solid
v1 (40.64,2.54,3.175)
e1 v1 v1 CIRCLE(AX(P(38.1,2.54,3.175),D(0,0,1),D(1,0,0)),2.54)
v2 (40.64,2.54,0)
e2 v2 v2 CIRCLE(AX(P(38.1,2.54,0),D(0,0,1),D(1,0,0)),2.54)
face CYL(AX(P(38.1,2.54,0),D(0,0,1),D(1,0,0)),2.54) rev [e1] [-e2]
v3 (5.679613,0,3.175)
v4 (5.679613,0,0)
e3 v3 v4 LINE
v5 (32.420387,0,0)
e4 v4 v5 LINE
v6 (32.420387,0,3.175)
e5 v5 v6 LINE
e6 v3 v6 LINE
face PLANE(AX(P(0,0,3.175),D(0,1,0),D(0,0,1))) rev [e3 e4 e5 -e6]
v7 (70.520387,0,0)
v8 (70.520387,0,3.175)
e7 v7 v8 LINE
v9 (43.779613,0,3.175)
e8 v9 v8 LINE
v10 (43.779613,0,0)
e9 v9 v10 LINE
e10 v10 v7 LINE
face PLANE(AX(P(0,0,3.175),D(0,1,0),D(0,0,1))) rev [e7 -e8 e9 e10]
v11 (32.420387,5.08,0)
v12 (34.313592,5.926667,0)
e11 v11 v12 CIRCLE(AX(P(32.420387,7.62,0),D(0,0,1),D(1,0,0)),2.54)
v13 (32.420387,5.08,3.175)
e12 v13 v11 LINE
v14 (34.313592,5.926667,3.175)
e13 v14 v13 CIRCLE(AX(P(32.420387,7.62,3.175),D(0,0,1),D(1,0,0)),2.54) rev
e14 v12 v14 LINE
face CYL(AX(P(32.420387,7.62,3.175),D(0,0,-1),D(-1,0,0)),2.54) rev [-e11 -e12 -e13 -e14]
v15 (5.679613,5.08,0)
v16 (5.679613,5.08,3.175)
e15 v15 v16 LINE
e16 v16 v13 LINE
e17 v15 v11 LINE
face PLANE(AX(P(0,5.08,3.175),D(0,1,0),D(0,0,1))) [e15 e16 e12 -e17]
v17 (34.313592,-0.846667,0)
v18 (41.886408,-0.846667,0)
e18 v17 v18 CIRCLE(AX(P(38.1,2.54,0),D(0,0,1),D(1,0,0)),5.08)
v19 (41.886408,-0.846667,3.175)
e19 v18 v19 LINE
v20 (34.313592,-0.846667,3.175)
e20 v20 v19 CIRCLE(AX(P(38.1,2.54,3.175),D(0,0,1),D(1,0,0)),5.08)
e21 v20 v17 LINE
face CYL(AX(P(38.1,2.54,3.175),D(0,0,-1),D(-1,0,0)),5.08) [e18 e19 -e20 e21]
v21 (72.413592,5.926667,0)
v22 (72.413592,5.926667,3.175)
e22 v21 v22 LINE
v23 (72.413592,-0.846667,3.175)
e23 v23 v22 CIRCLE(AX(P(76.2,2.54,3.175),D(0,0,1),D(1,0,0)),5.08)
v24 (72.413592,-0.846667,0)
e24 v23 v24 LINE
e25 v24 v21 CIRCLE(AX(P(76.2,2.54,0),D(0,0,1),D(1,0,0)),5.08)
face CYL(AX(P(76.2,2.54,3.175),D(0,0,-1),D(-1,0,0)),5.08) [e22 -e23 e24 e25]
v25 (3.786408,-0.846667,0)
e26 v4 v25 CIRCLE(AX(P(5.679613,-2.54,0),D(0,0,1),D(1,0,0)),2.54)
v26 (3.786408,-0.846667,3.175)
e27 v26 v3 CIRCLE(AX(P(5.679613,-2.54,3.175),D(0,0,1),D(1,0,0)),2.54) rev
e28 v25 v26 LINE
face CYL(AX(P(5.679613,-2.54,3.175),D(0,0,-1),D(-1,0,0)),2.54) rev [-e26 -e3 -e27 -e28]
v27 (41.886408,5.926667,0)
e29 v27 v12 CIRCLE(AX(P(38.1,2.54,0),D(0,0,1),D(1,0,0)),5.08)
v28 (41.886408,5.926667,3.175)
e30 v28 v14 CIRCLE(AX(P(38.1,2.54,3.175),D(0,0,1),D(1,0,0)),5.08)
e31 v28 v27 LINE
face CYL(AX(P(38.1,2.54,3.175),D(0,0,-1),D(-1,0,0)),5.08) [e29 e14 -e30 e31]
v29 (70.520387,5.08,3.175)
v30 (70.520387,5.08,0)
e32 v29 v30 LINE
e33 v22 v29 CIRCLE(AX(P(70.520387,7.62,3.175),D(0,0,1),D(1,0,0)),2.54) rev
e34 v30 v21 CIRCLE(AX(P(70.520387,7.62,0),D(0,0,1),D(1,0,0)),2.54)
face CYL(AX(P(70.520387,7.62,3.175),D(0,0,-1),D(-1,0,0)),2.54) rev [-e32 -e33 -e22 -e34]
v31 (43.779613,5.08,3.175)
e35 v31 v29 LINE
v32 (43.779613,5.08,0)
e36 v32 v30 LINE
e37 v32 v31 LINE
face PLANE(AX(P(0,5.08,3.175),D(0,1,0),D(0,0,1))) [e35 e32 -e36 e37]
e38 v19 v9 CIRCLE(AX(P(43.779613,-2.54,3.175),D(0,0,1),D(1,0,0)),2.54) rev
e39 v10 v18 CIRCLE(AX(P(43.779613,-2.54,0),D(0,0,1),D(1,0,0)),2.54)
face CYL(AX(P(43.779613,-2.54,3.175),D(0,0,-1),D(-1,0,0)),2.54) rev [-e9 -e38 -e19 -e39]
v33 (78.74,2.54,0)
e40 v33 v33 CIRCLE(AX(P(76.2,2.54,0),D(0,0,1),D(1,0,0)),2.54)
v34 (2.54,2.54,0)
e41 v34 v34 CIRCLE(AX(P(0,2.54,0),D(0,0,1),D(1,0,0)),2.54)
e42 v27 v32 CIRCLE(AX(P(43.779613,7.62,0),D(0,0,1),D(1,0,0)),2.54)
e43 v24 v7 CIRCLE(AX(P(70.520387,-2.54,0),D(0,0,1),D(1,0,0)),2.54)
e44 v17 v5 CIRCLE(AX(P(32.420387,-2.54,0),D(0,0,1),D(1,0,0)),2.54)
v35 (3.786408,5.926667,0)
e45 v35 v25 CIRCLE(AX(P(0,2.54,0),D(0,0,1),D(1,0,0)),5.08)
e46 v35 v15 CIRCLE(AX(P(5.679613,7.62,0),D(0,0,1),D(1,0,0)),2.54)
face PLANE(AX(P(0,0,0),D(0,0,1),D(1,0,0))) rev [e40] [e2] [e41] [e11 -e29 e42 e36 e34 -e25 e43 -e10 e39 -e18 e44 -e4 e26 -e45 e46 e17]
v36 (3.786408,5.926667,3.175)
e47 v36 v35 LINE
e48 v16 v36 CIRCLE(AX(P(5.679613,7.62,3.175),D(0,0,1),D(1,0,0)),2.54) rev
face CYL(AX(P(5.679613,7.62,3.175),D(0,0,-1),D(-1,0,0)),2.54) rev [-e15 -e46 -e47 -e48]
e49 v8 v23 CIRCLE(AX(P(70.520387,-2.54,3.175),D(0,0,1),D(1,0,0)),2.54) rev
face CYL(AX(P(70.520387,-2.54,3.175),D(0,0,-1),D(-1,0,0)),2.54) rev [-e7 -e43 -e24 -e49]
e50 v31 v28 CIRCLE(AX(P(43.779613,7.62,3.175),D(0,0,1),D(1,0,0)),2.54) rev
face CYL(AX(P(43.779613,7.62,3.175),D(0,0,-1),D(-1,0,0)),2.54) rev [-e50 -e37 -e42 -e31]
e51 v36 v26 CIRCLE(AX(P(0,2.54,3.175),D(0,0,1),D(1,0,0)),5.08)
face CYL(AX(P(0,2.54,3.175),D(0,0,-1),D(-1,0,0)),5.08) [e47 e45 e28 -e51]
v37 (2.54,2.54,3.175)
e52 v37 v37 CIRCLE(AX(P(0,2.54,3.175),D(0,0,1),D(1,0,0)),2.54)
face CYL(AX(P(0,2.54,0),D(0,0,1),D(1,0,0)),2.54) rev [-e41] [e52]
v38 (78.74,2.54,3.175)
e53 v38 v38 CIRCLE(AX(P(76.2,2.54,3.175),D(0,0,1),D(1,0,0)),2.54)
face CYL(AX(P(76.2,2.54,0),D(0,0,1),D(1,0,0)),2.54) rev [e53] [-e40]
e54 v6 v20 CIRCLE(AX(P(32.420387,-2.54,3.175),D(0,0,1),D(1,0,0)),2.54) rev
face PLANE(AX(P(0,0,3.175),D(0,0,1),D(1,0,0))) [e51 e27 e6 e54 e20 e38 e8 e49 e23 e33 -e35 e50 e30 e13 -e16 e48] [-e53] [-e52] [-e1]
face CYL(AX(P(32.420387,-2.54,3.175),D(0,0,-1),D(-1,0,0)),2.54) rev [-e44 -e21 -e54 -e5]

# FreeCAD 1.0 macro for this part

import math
import FreeCAD as App
import Part
import Sketcher
from FreeCAD import Vector
Q = App.Units.Quantity


def edges_at(feature, points):
    """Names of the edges that pass closest to the given points."""
    edges = feature.Shape.Edges
    near = lambda p: min(range(len(edges)), key=lambda i: edges[i].distToShape(Part.Vertex(*p))[0])
    return sorted({f"Edge{near(p) + 1}" for p in points})

doc = App.newDocument("Part")
body = doc.addObject("PartDesign::Body", "Body")

# Sketch on XY plane
sketch1 = body.newObject("Sketcher::SketchObject", "Sketch")
sketch1.AttachmentSupport = (doc.getObject("XY_Plane"), [""])
sketch1.MapMode = "FlatFace"
sketch1.addGeometry(Part.LineSegment(Vector(4, 0, 0), Vector(34, 0, 0)), False)
sketch1.addGeometry(Part.ArcOfCircle(Part.Circle(Vector(38, 3, 0), Vector(0, 0, 1), 5), math.radians(-150), math.radians(-30)), False)
sketch1.addGeometry(Part.LineSegment(Vector(42, 0, 0), Vector(72, 0, 0)), False)
sketch1.addGeometry(Part.ArcOfCircle(Part.Circle(Vector(76, 3, 0), Vector(0, 0, 1), 5), math.radians(-150), math.radians(150)), False)
sketch1.addGeometry(Part.LineSegment(Vector(72, 5, 0), Vector(42, 5, 0)), False)
sketch1.addGeometry(Part.ArcOfCircle(Part.Circle(Vector(38, 3, 0), Vector(0, 0, 1), 5), math.radians(30), math.radians(150)), False)
sketch1.addGeometry(Part.LineSegment(Vector(34, 5, 0), Vector(4, 5, 0)), False)
sketch1.addGeometry(Part.ArcOfCircle(Part.Circle(Vector(0, 3, 0), Vector(0, 0, 1), 5), math.radians(30), math.radians(330)), False)
sketch1.addConstraint(Sketcher.Constraint("Coincident", 0, 2, 1, 1))
sketch1.addConstraint(Sketcher.Constraint("Coincident", 1, 2, 2, 1))
sketch1.addConstraint(Sketcher.Constraint("Coincident", 2, 2, 3, 1))
sketch1.addConstraint(Sketcher.Constraint("Coincident", 3, 2, 4, 1))
sketch1.addConstraint(Sketcher.Constraint("Coincident", 4, 2, 5, 1))
sketch1.addConstraint(Sketcher.Constraint("Coincident", 5, 2, 6, 1))
sketch1.addConstraint(Sketcher.Constraint("Coincident", 6, 2, 7, 1))
sketch1.addConstraint(Sketcher.Constraint("Coincident", 7, 2, 0, 1))
sketch1.addConstraint(Sketcher.Constraint("Horizontal", 0))
sketch1.addConstraint(Sketcher.Constraint("Horizontal", 2))
sketch1.addConstraint(Sketcher.Constraint("Horizontal", 4))
sketch1.addConstraint(Sketcher.Constraint("Horizontal", 6))
sketch1.addConstraint(Sketcher.Constraint("Coincident", 5, 3, 1, 3))
sketch1.addConstraint(Sketcher.Constraint("Equal", 1, 3))
sketch1.addConstraint(Sketcher.Constraint("Equal", 3, 5))
sketch1.addConstraint(Sketcher.Constraint("Equal", 5, 7))
sketch1.addConstraint(Sketcher.Constraint("PointOnObject", 7, 3, -2))
sketch1.addConstraint(Sketcher.Constraint("PointOnObject", 0, 2, -1))
sketch1.addConstraint(Sketcher.Constraint("PointOnObject", 1, 2, -1))
sketch1.addConstraint(Sketcher.Constraint("Horizontal", 1, 3, 3, 3))
sketch1.addConstraint(Sketcher.Constraint("Horizontal", 5, 3, 7, 3))
sketch1.addConstraint(Sketcher.Constraint("Horizontal", 4, 2, 5, 2))
sketch1.addConstraint(Sketcher.Constraint("Vertical", 2, 2, 3, 2))
sketch1.addConstraint(Sketcher.Constraint("Equal", 0, 2))
sketch1.addConstraint(Sketcher.Constraint("Radius", 1, Q("0.2 in")))
sketch1.addConstraint(Sketcher.Constraint("DistanceX", -1, 1, 3, 3, Q("3 in")))
sketch1.addConstraint(Sketcher.Constraint("DistanceY", -1, 1, 1, 3, Q("0.1 in")))
pad1 = body.newObject("PartDesign::Pad", "Pad")
pad1.Profile = sketch1
pad1.Length = Q("0.125 in")

# Sketch on XY plane
sketch2 = body.newObject("Sketcher::SketchObject", "Sketch001")
sketch2.AttachmentSupport = (doc.getObject("XY_Plane"), [""])
sketch2.MapMode = "FlatFace"
sketch2.AttachmentOffset = App.Placement(Vector(0, 0, 0.125 * 25.4), App.Rotation())
sketch2.addGeometry(Part.Circle(Vector(0, 2.5, 0), Vector(0, 0, 1), 2.5), False)
sketch2.addGeometry(Part.Circle(Vector(76.2, 2.5, 0), Vector(0, 0, 1), 2.5), False)
sketch2.addGeometry(Part.Circle(Vector(38.1, 2.5, 0), Vector(0, 0, 1), 2.5), False)
sketch2.addConstraint(Sketcher.Constraint("Equal", 0, 1))
sketch2.addConstraint(Sketcher.Constraint("Equal", 1, 2))
sketch2.addConstraint(Sketcher.Constraint("PointOnObject", 0, 3, -2))
sketch2.addConstraint(Sketcher.Constraint("Horizontal", 0, 3, 1, 3))
sketch2.addConstraint(Sketcher.Constraint("Horizontal", 1, 3, 2, 3))
sketch2.addConstraint(Sketcher.Constraint("Diameter", 0, Q("0.2 in")))
sketch2.addConstraint(Sketcher.Constraint("DistanceX", -1, 1, 1, 3, Q("3 in")))
sketch2.addConstraint(Sketcher.Constraint("DistanceY", -1, 1, 0, 3, Q("0.1 in")))
sketch2.addConstraint(Sketcher.Constraint("DistanceX", -1, 1, 2, 3, Q("1.5 in")))
pocket1 = body.newObject("PartDesign::Pocket", "Pocket")
pocket1.Profile = sketch2
pocket1.Type = "ThroughAll"
pocket1.Midplane = True
doc.recompute()

fillet = body.newObject("PartDesign::Fillet", "Fillet")
fillet.Base = (pocket1, edges_at(pocket1, [
    (4.399, 5.08, 1.587),
    (33.701, 5.08, 1.587),
    (42.499, 5.08, 1.587),
    (71.801, 5.08, 1.587),
    (71.801, 0, 1.587),
    (4.399, 0, 1.587),
    (33.701, 0, 1.587),
    (42.499, 0, 1.587),
]))
fillet.Radius = Q("0.1 in")

doc.recompute()
